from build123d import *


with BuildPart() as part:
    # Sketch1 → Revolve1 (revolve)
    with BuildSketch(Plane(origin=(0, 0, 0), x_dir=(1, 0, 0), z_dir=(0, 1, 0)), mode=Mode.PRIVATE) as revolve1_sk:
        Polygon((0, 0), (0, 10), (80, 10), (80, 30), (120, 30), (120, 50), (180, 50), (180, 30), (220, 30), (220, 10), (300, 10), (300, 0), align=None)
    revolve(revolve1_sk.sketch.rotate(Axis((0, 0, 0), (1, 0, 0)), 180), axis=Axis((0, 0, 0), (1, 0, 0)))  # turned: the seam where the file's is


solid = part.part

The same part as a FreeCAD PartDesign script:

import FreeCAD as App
import Part
import Sketcher

doc = App.newDocument("Part")
body = doc.addObject("PartDesign::Body", "Body")

sketch1 = body.newObject("Sketcher::SketchObject", "Sketch")
sketch1.AttachmentSupport = (doc.getObject("XZ_Plane"), [""])
sketch1.MapMode = "FlatFace"
sketch1.addGeometry([
    Part.LineSegment(App.Vector(0, -10, 0), App.Vector(0, 0, 0)),
    Part.LineSegment(App.Vector(0, 0, 0), App.Vector(300, 0, 0)),
    Part.LineSegment(App.Vector(300, 0, 0), App.Vector(300, -10, 0)),
    Part.LineSegment(App.Vector(300, -10, 0), App.Vector(220, -10, 0)),
    Part.LineSegment(App.Vector(220, -10, 0), App.Vector(220, -30, 0)),
    Part.LineSegment(App.Vector(220, -30, 0), App.Vector(180, -30, 0)),
    Part.LineSegment(App.Vector(180, -30, 0), App.Vector(180, -50, 0)),
    Part.LineSegment(App.Vector(180, -50, 0), App.Vector(120, -50, 0)),
    Part.LineSegment(App.Vector(120, -50, 0), App.Vector(120, -30, 0)),
    Part.LineSegment(App.Vector(120, -30, 0), App.Vector(80, -30, 0)),
    Part.LineSegment(App.Vector(80, -30, 0), App.Vector(80, -10, 0)),
    Part.LineSegment(App.Vector(80, -10, 0), App.Vector(0, -10, 0)),
], False)
sketch1.addConstraint([
    Sketcher.Constraint("Coincident", 0, 2, 1, 1),
    Sketcher.Constraint("Coincident", 1, 2, 2, 1),
    Sketcher.Constraint("Coincident", 2, 2, 3, 1),
    Sketcher.Constraint("Coincident", 3, 2, 4, 1),
    Sketcher.Constraint("Coincident", 4, 2, 5, 1),
    Sketcher.Constraint("Coincident", 5, 2, 6, 1),
    Sketcher.Constraint("Coincident", 6, 2, 7, 1),
    Sketcher.Constraint("Coincident", 7, 2, 8, 1),
    Sketcher.Constraint("Coincident", 8, 2, 9, 1),
    Sketcher.Constraint("Coincident", 9, 2, 10, 1),
    Sketcher.Constraint("Coincident", 10, 2, 11, 1),
    Sketcher.Constraint("Coincident", 11, 2, 0, 1),
    Sketcher.Constraint("Vertical", 0),
    Sketcher.Constraint("Horizontal", 1),
    Sketcher.Constraint("Vertical", 2),
    Sketcher.Constraint("Horizontal", 3),
    Sketcher.Constraint("Vertical", 4),
    Sketcher.Constraint("Horizontal", 5),
    Sketcher.Constraint("Vertical", 6),
    Sketcher.Constraint("Horizontal", 7),
    Sketcher.Constraint("Vertical", 8),
    Sketcher.Constraint("Horizontal", 9),
    Sketcher.Constraint("Vertical", 10),
    Sketcher.Constraint("Horizontal", 11),
    Sketcher.Constraint("Coincident", 0, 2, -1, 1),
    Sketcher.Constraint("Horizontal", 5, 2, 8, 2),
    Sketcher.Constraint("Horizontal", 3, 2, 10, 2),
    Sketcher.Constraint("Equal", 5, 9),
    Sketcher.Constraint("Equal", 3, 11),
    Sketcher.Constraint("Equal", 4, 6),
    Sketcher.Constraint("DistanceX", 1, 1, 1, 2, 300.0),
    Sketcher.Constraint("DistanceX", 3, 2, 3, 1, 80.0),
    Sketcher.Constraint("DistanceX", 5, 2, 5, 1, 40.0),
    Sketcher.Constraint("DistanceY", 0, 1, 0, 2, 10.0),
    Sketcher.Constraint("DistanceY", 4, 2, 4, 1, 20.0),
])
revolution = body.newObject("PartDesign::Revolution", "Revolution")
revolution.Profile = sketch1
revolution.ReferenceAxis = (sketch1, ["H_Axis"])
revolution.Angle = 360

doc.recompute()
